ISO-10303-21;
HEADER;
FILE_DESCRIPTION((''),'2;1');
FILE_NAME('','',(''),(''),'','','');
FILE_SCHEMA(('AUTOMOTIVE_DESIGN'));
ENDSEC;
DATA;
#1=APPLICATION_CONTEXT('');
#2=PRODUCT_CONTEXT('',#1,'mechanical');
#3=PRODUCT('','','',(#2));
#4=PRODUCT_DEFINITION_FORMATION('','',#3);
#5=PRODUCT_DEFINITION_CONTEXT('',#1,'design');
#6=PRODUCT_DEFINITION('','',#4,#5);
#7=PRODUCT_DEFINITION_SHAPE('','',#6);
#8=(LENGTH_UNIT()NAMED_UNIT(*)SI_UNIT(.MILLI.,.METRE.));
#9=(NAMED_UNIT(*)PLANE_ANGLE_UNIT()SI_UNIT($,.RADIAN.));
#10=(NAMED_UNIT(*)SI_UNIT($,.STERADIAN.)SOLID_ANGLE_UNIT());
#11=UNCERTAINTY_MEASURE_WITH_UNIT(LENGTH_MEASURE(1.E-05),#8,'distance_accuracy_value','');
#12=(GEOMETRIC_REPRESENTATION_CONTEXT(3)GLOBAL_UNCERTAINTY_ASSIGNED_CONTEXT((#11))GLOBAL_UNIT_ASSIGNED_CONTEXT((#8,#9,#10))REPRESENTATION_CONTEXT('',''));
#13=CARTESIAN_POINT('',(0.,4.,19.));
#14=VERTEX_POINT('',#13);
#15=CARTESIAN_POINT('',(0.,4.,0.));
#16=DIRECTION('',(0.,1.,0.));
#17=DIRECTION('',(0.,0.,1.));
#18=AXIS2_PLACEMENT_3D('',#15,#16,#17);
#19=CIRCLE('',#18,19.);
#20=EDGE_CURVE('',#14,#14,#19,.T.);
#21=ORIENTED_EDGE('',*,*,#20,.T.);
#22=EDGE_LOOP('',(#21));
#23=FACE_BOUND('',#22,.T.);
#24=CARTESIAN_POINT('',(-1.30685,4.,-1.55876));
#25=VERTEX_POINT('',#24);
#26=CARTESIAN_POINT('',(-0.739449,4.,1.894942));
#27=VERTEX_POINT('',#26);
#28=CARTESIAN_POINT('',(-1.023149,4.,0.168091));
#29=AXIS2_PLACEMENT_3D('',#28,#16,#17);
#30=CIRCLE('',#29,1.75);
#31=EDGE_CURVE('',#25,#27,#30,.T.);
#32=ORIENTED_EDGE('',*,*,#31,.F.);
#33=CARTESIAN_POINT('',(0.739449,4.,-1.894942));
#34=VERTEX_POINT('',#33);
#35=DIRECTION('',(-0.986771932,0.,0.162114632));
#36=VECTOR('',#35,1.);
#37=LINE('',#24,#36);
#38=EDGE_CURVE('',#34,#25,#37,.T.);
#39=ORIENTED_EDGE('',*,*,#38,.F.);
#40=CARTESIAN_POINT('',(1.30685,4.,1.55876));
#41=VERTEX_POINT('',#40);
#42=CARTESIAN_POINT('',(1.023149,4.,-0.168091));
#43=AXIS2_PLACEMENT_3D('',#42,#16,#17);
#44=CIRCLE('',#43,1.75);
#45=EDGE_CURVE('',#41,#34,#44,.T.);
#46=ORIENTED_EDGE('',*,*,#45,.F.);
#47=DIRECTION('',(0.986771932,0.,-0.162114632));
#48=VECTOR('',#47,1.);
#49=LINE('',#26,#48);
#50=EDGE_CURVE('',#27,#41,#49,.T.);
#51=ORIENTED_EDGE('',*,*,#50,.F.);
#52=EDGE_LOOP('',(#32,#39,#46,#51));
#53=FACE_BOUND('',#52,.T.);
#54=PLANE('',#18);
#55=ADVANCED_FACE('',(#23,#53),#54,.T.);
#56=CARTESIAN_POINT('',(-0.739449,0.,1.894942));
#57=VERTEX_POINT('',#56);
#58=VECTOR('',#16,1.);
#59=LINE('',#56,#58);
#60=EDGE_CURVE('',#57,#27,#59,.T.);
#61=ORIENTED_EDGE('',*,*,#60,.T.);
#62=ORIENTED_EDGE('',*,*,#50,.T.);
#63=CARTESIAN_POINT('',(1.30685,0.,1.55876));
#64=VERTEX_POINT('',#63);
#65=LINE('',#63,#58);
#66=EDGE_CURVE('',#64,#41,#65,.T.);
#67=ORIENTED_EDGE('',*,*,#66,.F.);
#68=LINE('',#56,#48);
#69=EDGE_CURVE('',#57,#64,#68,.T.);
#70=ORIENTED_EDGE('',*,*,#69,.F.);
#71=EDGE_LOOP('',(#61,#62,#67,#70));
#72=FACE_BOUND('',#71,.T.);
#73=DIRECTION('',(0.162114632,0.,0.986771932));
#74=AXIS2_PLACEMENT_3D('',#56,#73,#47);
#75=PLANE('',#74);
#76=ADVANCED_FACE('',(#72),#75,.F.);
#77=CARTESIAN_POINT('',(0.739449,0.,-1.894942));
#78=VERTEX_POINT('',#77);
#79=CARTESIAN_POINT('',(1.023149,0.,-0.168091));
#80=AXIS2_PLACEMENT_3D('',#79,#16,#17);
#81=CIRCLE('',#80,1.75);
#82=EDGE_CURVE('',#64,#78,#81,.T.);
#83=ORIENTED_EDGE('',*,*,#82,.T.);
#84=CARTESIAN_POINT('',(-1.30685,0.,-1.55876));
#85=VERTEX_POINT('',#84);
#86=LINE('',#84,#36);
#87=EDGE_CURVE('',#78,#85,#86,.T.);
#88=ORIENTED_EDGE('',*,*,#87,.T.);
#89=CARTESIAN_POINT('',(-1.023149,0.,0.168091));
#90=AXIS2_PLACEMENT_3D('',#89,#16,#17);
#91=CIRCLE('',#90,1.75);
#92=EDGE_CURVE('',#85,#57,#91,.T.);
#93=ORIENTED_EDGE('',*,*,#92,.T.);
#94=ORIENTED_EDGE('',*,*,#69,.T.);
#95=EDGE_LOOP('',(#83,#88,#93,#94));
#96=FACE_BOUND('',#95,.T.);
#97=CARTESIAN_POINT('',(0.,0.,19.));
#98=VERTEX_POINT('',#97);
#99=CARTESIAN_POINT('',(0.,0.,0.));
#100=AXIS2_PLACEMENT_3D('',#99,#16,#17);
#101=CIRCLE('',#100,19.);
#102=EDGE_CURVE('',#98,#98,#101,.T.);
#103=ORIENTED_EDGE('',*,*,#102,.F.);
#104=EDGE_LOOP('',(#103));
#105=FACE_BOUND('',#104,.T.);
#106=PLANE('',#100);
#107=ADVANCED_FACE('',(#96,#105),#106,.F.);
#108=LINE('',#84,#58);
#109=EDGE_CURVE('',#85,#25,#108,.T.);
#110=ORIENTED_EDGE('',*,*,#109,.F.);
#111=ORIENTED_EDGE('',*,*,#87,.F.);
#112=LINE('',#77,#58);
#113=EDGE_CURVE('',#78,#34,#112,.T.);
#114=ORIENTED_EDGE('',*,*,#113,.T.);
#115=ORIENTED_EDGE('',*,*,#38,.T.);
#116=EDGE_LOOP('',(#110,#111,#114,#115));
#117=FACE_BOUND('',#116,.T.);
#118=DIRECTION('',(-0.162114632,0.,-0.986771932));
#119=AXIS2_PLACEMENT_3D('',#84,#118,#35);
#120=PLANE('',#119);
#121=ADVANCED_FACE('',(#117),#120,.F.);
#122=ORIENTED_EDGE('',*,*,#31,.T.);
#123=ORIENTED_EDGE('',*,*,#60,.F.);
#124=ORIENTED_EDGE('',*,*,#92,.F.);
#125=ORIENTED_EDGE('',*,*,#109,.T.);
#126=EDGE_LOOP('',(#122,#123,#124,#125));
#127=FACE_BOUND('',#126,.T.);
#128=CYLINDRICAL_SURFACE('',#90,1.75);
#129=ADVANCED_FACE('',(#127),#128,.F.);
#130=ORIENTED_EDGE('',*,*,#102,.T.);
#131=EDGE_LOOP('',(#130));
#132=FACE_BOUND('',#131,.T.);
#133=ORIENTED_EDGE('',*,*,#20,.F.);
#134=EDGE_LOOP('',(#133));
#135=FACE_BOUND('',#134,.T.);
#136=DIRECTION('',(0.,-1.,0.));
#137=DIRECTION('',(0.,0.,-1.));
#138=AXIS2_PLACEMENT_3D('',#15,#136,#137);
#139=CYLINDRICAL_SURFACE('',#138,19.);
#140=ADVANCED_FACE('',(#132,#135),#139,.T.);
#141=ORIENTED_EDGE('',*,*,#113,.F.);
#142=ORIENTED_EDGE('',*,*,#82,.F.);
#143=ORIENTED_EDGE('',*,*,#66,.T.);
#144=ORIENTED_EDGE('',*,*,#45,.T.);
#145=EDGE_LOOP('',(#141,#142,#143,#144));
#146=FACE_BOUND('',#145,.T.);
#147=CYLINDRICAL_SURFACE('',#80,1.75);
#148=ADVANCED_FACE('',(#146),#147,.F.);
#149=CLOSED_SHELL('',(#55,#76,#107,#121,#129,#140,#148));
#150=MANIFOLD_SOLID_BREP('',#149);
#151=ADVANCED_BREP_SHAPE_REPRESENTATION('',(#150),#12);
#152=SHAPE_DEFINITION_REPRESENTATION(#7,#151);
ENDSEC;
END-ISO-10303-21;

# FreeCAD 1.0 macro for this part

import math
import FreeCAD as App
import Part
import Sketcher

doc = App.newDocument("Part")
body = doc.addObject("PartDesign::Body", "Body")

# Sketch on XZ plane
sketch1 = doc.addObject("Sketcher::SketchObject", "Sketch")
body.addObject(sketch1)
sketch1.AttachmentSupport = (doc.XZ_Plane, [""])
sketch1.MapMode = "FlatFace"
sketch1.addGeometry(Part.Circle(App.Vector(0, 0, 0), App.Vector(0, 0, 1), 19), False)
sketch1.addConstraint([
    Sketcher.Constraint("Coincident", 0, 3, -1, 1),
    Sketcher.Constraint("Diameter", 0, 38.0),
])
pad1 = doc.addObject("PartDesign::Pad", "Pad")
body.addObject(pad1)
pad1.Profile = sketch1
pad1.Length = 4
pad1.Reversed = True

# Sketch on XZ plane
sketch2 = doc.addObject("Sketcher::SketchObject", "Sketch001")
body.addObject(sketch2)
sketch2.AttachmentSupport = (doc.XZ_Plane, [""])
sketch2.MapMode = "FlatFace"
sketch2.AttachmentOffset = App.Placement(App.Vector(0, 0, -4), App.Rotation())
sketch2.addGeometry([
    Part.LineSegment(App.Vector(0.7, -1.9, 0), App.Vector(-1.3, -1.6, 0)),
    Part.ArcOfCircle(Part.Circle(App.Vector(-1, 0.2, 0), App.Vector(0, 0, 1), 1.8), math.radians(81), math.radians(261)),
    Part.LineSegment(App.Vector(-0.7, 1.9, 0), App.Vector(1.3, 1.6, 0)),
    Part.ArcOfCircle(Part.Circle(App.Vector(1, -0.2, 0), App.Vector(0, 0, 1), 1.8), math.radians(-99), math.radians(81)),
], False)
sketch2.addConstraint([
    Sketcher.Constraint("Tangent", 0, 2, 1, 2),
    Sketcher.Constraint("Tangent", 1, 1, 2, 1),
    Sketcher.Constraint("Tangent", 2, 2, 3, 2),
    Sketcher.Constraint("Tangent", 3, 1, 0, 1),
    Sketcher.Constraint("Equal", 1, 3),
    Sketcher.Constraint("Symmetric", 1, 3, 3, 3, -1, 1),
    Sketcher.Constraint("Radius", 1, 1.75),
    Sketcher.Constraint("DistanceX", 0, 2, 3, 3, 2.329999),
    Sketcher.Constraint("DistanceX", 1, 3, 3, 3, 2.046298),
])
pocket1 = doc.addObject("PartDesign::Pocket", "Pocket")
body.addObject(pocket1)
pocket1.Profile = sketch2
pocket1.Type = "ThroughAll"
pocket1.Reversed = True

doc.recompute()
